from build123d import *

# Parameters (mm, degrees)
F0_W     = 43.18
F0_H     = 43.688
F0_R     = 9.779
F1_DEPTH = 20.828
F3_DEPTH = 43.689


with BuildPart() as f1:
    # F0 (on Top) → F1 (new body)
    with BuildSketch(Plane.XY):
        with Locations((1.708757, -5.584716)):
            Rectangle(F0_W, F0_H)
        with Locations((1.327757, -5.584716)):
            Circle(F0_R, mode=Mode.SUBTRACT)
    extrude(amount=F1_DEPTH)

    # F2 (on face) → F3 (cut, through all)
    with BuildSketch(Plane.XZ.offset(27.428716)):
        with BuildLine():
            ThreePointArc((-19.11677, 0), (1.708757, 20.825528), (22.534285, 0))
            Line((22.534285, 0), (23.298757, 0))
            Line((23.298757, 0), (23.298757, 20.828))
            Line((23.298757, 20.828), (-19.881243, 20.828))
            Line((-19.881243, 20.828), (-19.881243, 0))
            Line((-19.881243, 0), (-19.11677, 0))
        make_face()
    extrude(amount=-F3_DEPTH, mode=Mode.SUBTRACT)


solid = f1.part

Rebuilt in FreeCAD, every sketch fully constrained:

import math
import FreeCAD as App
import Part
import Sketcher
Q = App.Units.Quantity

doc = App.newDocument("Part")
body = doc.addObject("PartDesign::Body", "Body")

# Sketch on XY plane
sketch1 = body.newObject("Sketcher::SketchObject", "Sketch")
sketch1.AttachmentSupport = (doc.getObject("XY_Plane"), [""])
sketch1.MapMode = "FlatFace"
sketch1.addGeometry([
    Part.LineSegment(App.Vector(-20, 16, 0), App.Vector(-20, -27, 0)),  # 0
    Part.LineSegment(App.Vector(-20, -27, 0), App.Vector(23, -27, 0)),  # 1
    Part.LineSegment(App.Vector(23, -27, 0), App.Vector(23, 16, 0)),  # 2
    Part.LineSegment(App.Vector(23, 16, 0), App.Vector(-20, 16, 0)),  # 3
    Part.Circle(App.Vector(1, -6, 0), App.Vector(0, 0, 1), 10),  # 4
], False)
sketch1.addConstraint([
    Sketcher.Constraint("Coincident", 0, 2, 1, 1),
    Sketcher.Constraint("Coincident", 1, 2, 2, 1),
    Sketcher.Constraint("Coincident", 2, 2, 3, 1),
    Sketcher.Constraint("Coincident", 3, 2, 0, 1),
    Sketcher.Constraint("Vertical", 0),
    Sketcher.Constraint("Horizontal", 1),
    Sketcher.Constraint("Vertical", 2),
    Sketcher.Constraint("Horizontal", 3),
    Sketcher.Constraint("Diameter", 4, Q("0.77 in")),
    Sketcher.Constraint("DistanceX", 1, 1, 1, 2, Q("1.7 in")),
    Sketcher.Constraint("DistanceY", 0, 2, 0, 1, Q("1.72 in")),
    Sketcher.Constraint("DistanceY", 0, 2, 4, 3, Q("0.86 in")),
    Sketcher.Constraint("DistanceX", 0, 2, 4, 3, Q("0.835 in")),
    Sketcher.Constraint("DistanceX", -1, 1, 4, 3, 1.327757),
    Sketcher.Constraint("DistanceY", 4, 3, -1, 1, 5.584716),
])
pad1 = body.newObject("PartDesign::Pad", "Pad")
pad1.Profile = sketch1
pad1.Length = Q("0.82 in")

# Sketch on XZ plane
sketch2 = body.newObject("Sketcher::SketchObject", "Sketch001")
sketch2.AttachmentSupport = (doc.getObject("XZ_Plane"), [""])
sketch2.MapMode = "FlatFace"
sketch2.AttachmentOffset = App.Placement(App.Vector(0, 0, 27.428716), App.Rotation())
sketch2.addGeometry([
    Part.ArcOfCircle(Part.Circle(App.Vector(1.7, 0, 0), App.Vector(0, 0, 1), 20.8), math.radians(0), math.radians(180)),  # 0
    Part.LineSegment(App.Vector(22.5, 0, 0), App.Vector(23.3, 0, 0)),  # 1
    Part.LineSegment(App.Vector(23.3, 0, 0), App.Vector(23.3, 20.8, 0)),  # 2
    Part.LineSegment(App.Vector(23.3, 20.8, 0), App.Vector(-19.9, 20.8, 0)),  # 3
    Part.LineSegment(App.Vector(-19.9, 20.8, 0), App.Vector(-19.9, 0, 0)),  # 4
    Part.LineSegment(App.Vector(-19.9, 0, 0), App.Vector(-19.1, 0, 0)),  # 5
], False)
sketch2.addConstraint([
    Sketcher.Constraint("Coincident", 0, 1, 1, 1),
    Sketcher.Constraint("Coincident", 1, 2, 2, 1),
    Sketcher.Constraint("Coincident", 2, 2, 3, 1),
    Sketcher.Constraint("Coincident", 3, 2, 4, 1),
    Sketcher.Constraint("Coincident", 4, 2, 5, 1),
    Sketcher.Constraint("Coincident", 5, 2, 0, 2),
    Sketcher.Constraint("Horizontal", 1),
    Sketcher.Constraint("Vertical", 2),
    Sketcher.Constraint("Horizontal", 3),
    Sketcher.Constraint("Vertical", 4),
    Sketcher.Constraint("Horizontal", 5),
    Sketcher.Constraint("PointOnObject", 0, 3, -1),
    Sketcher.Constraint("PointOnObject", 0, 1, -1),
    Sketcher.Constraint("PointOnObject", 4, 2, -1),
    Sketcher.Constraint("Equal", 1, 5),
    Sketcher.Constraint("DistanceX", 3, 2, 3, 1, Q("1.7 in")),
    Sketcher.Constraint("DistanceY", 2, 1, 2, 2, Q("0.82 in")),
    Sketcher.Constraint("Radius", 0, 20.825527),
    Sketcher.Constraint("DistanceX", 5, 2, -1, 1, 19.11677),
])
pocket1 = body.newObject("PartDesign::Pocket", "Pocket")
pocket1.Profile = sketch2
pocket1.Type = "ThroughAll"

doc.recompute()
